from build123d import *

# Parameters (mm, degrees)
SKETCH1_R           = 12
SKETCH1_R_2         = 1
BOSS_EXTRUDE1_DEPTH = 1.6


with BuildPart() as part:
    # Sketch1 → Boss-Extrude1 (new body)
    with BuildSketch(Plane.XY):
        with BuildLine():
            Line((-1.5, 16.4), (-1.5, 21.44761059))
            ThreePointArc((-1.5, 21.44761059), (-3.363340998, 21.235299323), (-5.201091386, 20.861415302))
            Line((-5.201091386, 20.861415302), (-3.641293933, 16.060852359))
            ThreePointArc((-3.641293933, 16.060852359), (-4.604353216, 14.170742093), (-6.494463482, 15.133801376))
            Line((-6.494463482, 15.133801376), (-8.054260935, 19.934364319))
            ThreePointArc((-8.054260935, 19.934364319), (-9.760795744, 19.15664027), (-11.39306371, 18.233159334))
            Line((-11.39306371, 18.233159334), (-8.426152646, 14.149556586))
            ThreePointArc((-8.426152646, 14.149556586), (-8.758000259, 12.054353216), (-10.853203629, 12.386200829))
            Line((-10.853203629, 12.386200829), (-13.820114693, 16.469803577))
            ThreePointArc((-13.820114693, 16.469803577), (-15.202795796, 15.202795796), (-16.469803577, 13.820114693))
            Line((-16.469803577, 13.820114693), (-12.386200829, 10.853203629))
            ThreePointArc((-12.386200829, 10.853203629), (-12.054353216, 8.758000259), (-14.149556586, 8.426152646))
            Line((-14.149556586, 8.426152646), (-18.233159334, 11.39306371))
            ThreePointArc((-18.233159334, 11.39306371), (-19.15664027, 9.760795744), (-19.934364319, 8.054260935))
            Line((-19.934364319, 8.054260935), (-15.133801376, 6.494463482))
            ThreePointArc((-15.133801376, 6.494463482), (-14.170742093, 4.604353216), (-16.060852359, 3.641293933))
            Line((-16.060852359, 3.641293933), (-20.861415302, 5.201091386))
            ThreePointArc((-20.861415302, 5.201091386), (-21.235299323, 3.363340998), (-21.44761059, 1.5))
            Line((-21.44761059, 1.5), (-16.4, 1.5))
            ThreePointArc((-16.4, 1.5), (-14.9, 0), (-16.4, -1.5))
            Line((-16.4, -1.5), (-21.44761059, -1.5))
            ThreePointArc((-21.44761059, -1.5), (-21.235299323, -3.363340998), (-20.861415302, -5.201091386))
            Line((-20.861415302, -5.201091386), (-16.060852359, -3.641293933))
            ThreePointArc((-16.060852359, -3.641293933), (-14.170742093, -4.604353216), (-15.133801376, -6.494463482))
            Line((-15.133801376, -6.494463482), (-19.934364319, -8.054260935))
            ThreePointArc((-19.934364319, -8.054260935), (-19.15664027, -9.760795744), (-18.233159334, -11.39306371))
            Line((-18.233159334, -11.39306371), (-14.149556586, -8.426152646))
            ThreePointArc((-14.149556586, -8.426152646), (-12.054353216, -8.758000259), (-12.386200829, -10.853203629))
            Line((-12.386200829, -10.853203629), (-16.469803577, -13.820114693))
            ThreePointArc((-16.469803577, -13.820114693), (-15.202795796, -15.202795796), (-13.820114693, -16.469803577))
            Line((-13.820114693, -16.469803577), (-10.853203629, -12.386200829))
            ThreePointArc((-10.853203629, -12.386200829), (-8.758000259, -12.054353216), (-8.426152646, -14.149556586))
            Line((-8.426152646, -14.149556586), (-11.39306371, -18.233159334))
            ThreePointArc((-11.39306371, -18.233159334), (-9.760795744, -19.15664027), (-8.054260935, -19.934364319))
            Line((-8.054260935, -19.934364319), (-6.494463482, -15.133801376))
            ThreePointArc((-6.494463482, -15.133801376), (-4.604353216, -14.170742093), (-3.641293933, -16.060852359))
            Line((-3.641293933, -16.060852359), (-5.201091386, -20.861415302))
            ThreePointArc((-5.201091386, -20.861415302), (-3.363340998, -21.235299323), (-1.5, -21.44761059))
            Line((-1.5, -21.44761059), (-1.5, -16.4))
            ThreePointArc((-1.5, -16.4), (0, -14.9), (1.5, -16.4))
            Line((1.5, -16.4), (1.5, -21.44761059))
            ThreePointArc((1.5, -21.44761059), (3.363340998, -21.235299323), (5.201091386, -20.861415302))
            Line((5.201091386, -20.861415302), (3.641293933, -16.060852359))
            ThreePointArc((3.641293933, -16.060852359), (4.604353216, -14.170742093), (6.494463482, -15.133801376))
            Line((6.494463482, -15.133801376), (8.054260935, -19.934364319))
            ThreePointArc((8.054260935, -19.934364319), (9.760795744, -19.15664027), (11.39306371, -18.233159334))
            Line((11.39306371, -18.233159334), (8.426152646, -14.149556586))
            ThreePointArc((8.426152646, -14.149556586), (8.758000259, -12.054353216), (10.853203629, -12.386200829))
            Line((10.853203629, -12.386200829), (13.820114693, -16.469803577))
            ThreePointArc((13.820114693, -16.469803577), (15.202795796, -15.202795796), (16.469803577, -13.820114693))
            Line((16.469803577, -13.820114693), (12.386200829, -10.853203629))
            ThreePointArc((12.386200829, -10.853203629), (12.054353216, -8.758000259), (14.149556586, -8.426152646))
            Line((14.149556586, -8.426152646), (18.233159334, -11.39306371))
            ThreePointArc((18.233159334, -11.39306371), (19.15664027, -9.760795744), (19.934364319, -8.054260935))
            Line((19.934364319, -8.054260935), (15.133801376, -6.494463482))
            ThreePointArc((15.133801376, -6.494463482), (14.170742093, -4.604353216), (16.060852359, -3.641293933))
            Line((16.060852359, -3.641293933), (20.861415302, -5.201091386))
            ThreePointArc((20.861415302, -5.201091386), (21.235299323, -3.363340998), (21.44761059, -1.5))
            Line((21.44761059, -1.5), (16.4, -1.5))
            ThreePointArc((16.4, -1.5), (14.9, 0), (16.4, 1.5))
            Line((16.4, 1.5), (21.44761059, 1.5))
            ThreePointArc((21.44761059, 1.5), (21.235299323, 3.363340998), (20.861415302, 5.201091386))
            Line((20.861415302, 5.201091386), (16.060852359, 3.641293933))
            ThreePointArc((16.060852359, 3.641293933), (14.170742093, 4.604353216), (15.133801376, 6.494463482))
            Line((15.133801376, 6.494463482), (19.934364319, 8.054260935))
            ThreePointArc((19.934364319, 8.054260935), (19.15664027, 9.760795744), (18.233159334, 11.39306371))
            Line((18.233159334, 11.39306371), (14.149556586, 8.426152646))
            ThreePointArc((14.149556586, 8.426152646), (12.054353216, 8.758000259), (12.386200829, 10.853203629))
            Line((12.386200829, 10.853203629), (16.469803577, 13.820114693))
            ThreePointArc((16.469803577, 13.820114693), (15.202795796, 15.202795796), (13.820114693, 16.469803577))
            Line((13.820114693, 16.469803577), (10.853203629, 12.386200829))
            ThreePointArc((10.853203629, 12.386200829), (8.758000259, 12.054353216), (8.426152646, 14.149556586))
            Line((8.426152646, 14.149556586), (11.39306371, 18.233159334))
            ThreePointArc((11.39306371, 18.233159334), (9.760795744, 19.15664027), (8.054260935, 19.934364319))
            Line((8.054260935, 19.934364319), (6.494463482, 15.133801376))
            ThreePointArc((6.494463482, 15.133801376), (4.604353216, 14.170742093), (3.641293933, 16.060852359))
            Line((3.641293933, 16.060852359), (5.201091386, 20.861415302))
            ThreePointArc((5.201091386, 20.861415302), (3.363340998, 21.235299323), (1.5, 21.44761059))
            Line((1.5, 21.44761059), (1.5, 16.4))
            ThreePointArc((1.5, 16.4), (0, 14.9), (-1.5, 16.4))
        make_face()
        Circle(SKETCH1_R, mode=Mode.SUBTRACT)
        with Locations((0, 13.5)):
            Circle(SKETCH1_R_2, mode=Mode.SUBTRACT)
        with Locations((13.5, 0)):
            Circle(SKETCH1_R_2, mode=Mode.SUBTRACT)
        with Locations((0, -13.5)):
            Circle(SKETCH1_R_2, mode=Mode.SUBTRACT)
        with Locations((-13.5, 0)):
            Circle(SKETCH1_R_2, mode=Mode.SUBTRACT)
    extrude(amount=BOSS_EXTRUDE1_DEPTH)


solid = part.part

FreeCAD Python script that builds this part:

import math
import FreeCAD as App
import Part
import Sketcher

V = App.Vector
Q = App.Units.Quantity

doc = App.newDocument("Part")
params = doc.addObject("Spreadsheet::Sheet", "Params")
for row, (alias, value) in enumerate([
    ("sketch1_diameter", "2 mm"),
    ("sketch1_diameter2", "24 mm"),
    ("sketch1_radius", "21.5 mm"),
    ("sketch1_radius2", "1.5 mm"),
    ("pad1_length", "1.6 mm"),
], start=1):
    params.set(f"A{row}", alias)
    params.set(f"B{row}", "=" + value)
    params.setAlias(f"B{row}", alias)

body = doc.addObject("PartDesign::Body", "Body")

sketch1 = body.newObject("Sketcher::SketchObject", "Sketch")
sketch1.AttachmentSupport = (doc.getObject("XY_Plane"), [""])
sketch1.MapMode = "FlatFace"
sketch1.addGeometry([
    Part.LineSegment(V(-1.5, 16.4, 0), V(-1.5, 21.447611, 0)),
    Part.ArcOfCircle(Part.Circle(V(0, 0, 0), V(0, 0, 1), 21.5), math.radians(94.00063), math.radians(103.99937)),
    Part.LineSegment(V(-5.201091, 20.861415, 0), V(-3.641294, 16.060852, 0)),
    Part.ArcOfCircle(Part.Circle(V(-5.067879, 15.597327, 0), V(0, 0, 1), 1.5), math.radians(-162), math.radians(18)),
    Part.LineSegment(V(-6.494463, 15.133801, 0), V(-8.054261, 19.934364, 0)),
    Part.ArcOfCircle(Part.Circle(V(0, 0, 0), V(0, 0, 1), 21.5), math.radians(112.00063), math.radians(121.99937)),
    Part.LineSegment(V(-11.393064, 18.233159, 0), V(-8.426153, 14.149557, 0)),
    Part.ArcOfCircle(Part.Circle(V(-9.639678, 13.267879, 0), V(0, 0, 1), 1.5), math.radians(-144), math.radians(36)),
    Part.LineSegment(V(-10.853204, 12.386201, 0), V(-13.820115, 16.469804, 0)),
    Part.ArcOfCircle(Part.Circle(V(0, 0, 0), V(0, 0, 1), 21.5), math.radians(130.00063), math.radians(139.99937)),
    Part.LineSegment(V(-16.469804, 13.820115, 0), V(-12.386201, 10.853204, 0)),
    Part.ArcOfCircle(Part.Circle(V(-13.267879, 9.639678, 0), V(0, 0, 1), 1.5), math.radians(-126), math.radians(54)),
    Part.LineSegment(V(-14.149557, 8.426153, 0), V(-18.233159, 11.393064, 0)),
    Part.ArcOfCircle(Part.Circle(V(0, 0, 0), V(0, 0, 1), 21.5), math.radians(148.00063), math.radians(157.99937)),
    Part.LineSegment(V(-19.934364, 8.054261, 0), V(-15.133801, 6.494463, 0)),
    Part.ArcOfCircle(Part.Circle(V(-15.597327, 5.067879, 0), V(0, 0, 1), 1.5), math.radians(-108), math.radians(72)),
    Part.LineSegment(V(-16.060852, 3.641294, 0), V(-20.861415, 5.201091, 0)),
    Part.ArcOfCircle(Part.Circle(V(0, 0, 0), V(0, 0, 1), 21.5), math.radians(166.00063), math.radians(175.99937)),
    Part.LineSegment(V(-21.447611, 1.5, 0), V(-16.4, 1.5, 0)),
    Part.ArcOfCircle(Part.Circle(V(-16.4, 0, 0), V(0, 0, 1), 1.5), math.radians(-90), math.radians(90)),
    Part.LineSegment(V(-16.4, -1.5, 0), V(-21.447611, -1.5, 0)),
    Part.ArcOfCircle(Part.Circle(V(0, 0, 0), V(0, 0, 1), 21.5), math.radians(-175.99937), math.radians(-166.00063)),
    Part.LineSegment(V(-20.861415, -5.201091, 0), V(-16.060852, -3.641294, 0)),
    Part.ArcOfCircle(Part.Circle(V(-15.597327, -5.067879, 0), V(0, 0, 1), 1.5), math.radians(-72), math.radians(108)),
    Part.LineSegment(V(-15.133801, -6.494463, 0), V(-19.934364, -8.054261, 0)),
    Part.ArcOfCircle(Part.Circle(V(0, 0, 0), V(0, 0, 1), 21.5), math.radians(-157.99937), math.radians(-148.00063)),
    Part.LineSegment(V(-18.233159, -11.393064, 0), V(-14.149557, -8.426153, 0)),
    Part.ArcOfCircle(Part.Circle(V(-13.267879, -9.639678, 0), V(0, 0, 1), 1.5), math.radians(-54), math.radians(126)),
    Part.LineSegment(V(-12.386201, -10.853204, 0), V(-16.469804, -13.820115, 0)),
    Part.ArcOfCircle(Part.Circle(V(0, 0, 0), V(0, 0, 1), 21.5), math.radians(-139.99937), math.radians(-130.00063)),
    Part.LineSegment(V(-13.820115, -16.469804, 0), V(-10.853204, -12.386201, 0)),
    Part.ArcOfCircle(Part.Circle(V(-9.639678, -13.267879, 0), V(0, 0, 1), 1.5), math.radians(-36), math.radians(144)),
    Part.LineSegment(V(-8.426153, -14.149557, 0), V(-11.393064, -18.233159, 0)),
    Part.ArcOfCircle(Part.Circle(V(0, 0, 0), V(0, 0, 1), 21.5), math.radians(-121.99937), math.radians(-112.00063)),
    Part.LineSegment(V(-8.054261, -19.934364, 0), V(-6.494463, -15.133801, 0)),
    Part.ArcOfCircle(Part.Circle(V(-5.067879, -15.597327, 0), V(0, 0, 1), 1.5), math.radians(-18), math.radians(162)),
    Part.LineSegment(V(-3.641294, -16.060852, 0), V(-5.201091, -20.861415, 0)),
    Part.ArcOfCircle(Part.Circle(V(0, 0, 0), V(0, 0, 1), 21.5), math.radians(-103.99937), math.radians(-94.00063)),
    Part.LineSegment(V(-1.5, -21.447611, 0), V(-1.5, -16.4, 0)),
    Part.ArcOfCircle(Part.Circle(V(0, -16.4, 0), V(0, 0, 1), 1.5), math.radians(0), math.radians(180)),
    Part.LineSegment(V(1.5, -16.4, 0), V(1.5, -21.447611, 0)),
    Part.ArcOfCircle(Part.Circle(V(0, 0, 0), V(0, 0, 1), 21.5), math.radians(-85.99937), math.radians(-76.00063)),
    Part.LineSegment(V(5.201091, -20.861415, 0), V(3.641294, -16.060852, 0)),
    Part.ArcOfCircle(Part.Circle(V(5.067879, -15.597327, 0), V(0, 0, 1), 1.5), math.radians(18), math.radians(198)),
    Part.LineSegment(V(6.494463, -15.133801, 0), V(8.054261, -19.934364, 0)),
    Part.ArcOfCircle(Part.Circle(V(0, 0, 0), V(0, 0, 1), 21.5), math.radians(-67.99937), math.radians(-58.00063)),
    Part.LineSegment(V(11.393064, -18.233159, 0), V(8.426153, -14.149557, 0)),
    Part.ArcOfCircle(Part.Circle(V(9.639678, -13.267879, 0), V(0, 0, 1), 1.5), math.radians(36), math.radians(216)),
    Part.LineSegment(V(10.853204, -12.386201, 0), V(13.820115, -16.469804, 0)),
    Part.ArcOfCircle(Part.Circle(V(0, 0, 0), V(0, 0, 1), 21.5), math.radians(-49.99937), math.radians(-40.00063)),
    Part.LineSegment(V(16.469804, -13.820115, 0), V(12.386201, -10.853204, 0)),
    Part.ArcOfCircle(Part.Circle(V(13.267879, -9.639678, 0), V(0, 0, 1), 1.5), math.radians(54), math.radians(234)),
    Part.LineSegment(V(14.149557, -8.426153, 0), V(18.233159, -11.393064, 0)),
    Part.ArcOfCircle(Part.Circle(V(0, 0, 0), V(0, 0, 1), 21.5), math.radians(-31.99937), math.radians(-22.00063)),
    Part.LineSegment(V(19.934364, -8.054261, 0), V(15.133801, -6.494463, 0)),
    Part.ArcOfCircle(Part.Circle(V(15.597327, -5.067879, 0), V(0, 0, 1), 1.5), math.radians(72), math.radians(252)),
    Part.LineSegment(V(16.060852, -3.641294, 0), V(20.861415, -5.201091, 0)),
    Part.ArcOfCircle(Part.Circle(V(0, 0, 0), V(0, 0, 1), 21.5), math.radians(-13.99937), math.radians(-4.00063)),
    Part.LineSegment(V(21.447611, -1.5, 0), V(16.4, -1.5, 0)),
    Part.ArcOfCircle(Part.Circle(V(16.4, 0, 0), V(0, 0, 1), 1.5), math.radians(90), math.radians(270)),
    Part.LineSegment(V(16.4, 1.5, 0), V(21.447611, 1.5, 0)),
    Part.ArcOfCircle(Part.Circle(V(0, 0, 0), V(0, 0, 1), 21.5), math.radians(4.00063), math.radians(13.99937)),
    Part.LineSegment(V(20.861415, 5.201091, 0), V(16.060852, 3.641294, 0)),
    Part.ArcOfCircle(Part.Circle(V(15.597327, 5.067879, 0), V(0, 0, 1), 1.5), math.radians(108), math.radians(288)),
    Part.LineSegment(V(15.133801, 6.494463, 0), V(19.934364, 8.054261, 0)),
    Part.ArcOfCircle(Part.Circle(V(0, 0, 0), V(0, 0, 1), 21.5), math.radians(22.00063), math.radians(31.99937)),
    Part.LineSegment(V(18.233159, 11.393064, 0), V(14.149557, 8.426153, 0)),
    Part.ArcOfCircle(Part.Circle(V(13.267879, 9.639678, 0), V(0, 0, 1), 1.5), math.radians(126), math.radians(306)),
    Part.LineSegment(V(12.386201, 10.853204, 0), V(16.469804, 13.820115, 0)),
    Part.ArcOfCircle(Part.Circle(V(0, 0, 0), V(0, 0, 1), 21.5), math.radians(40.00063), math.radians(49.99937)),
    Part.LineSegment(V(13.820115, 16.469804, 0), V(10.853204, 12.386201, 0)),
    Part.ArcOfCircle(Part.Circle(V(9.639678, 13.267879, 0), V(0, 0, 1), 1.5), math.radians(144), math.radians(324)),
    Part.LineSegment(V(8.426153, 14.149557, 0), V(11.393064, 18.233159, 0)),
    Part.ArcOfCircle(Part.Circle(V(0, 0, 0), V(0, 0, 1), 21.5), math.radians(58.00063), math.radians(67.99937)),
    Part.LineSegment(V(8.054261, 19.934364, 0), V(6.494463, 15.133801, 0)),
    Part.ArcOfCircle(Part.Circle(V(5.067879, 15.597327, 0), V(0, 0, 1), 1.5), math.radians(162), math.radians(342)),
    Part.LineSegment(V(3.641294, 16.060852, 0), V(5.201091, 20.861415, 0)),
    Part.ArcOfCircle(Part.Circle(V(0, 0, 0), V(0, 0, 1), 21.5), math.radians(76.00063), math.radians(85.99937)),
    Part.LineSegment(V(1.5, 21.447611, 0), V(1.5, 16.4, 0)),
    Part.ArcOfCircle(Part.Circle(V(0, 16.4, 0), V(0, 0, 1), 1.5), math.radians(180), math.radians(360)),
    Part.Circle(V(0, -13.5, 0), V(0, 0, 1), 1),
    Part.Circle(V(-13.5, 0, 0), V(0, 0, 1), 1),
    Part.Circle(V(0, 0, 0), V(0, 0, 1), 12),
    Part.Circle(V(13.5, 0, 0), V(0, 0, 1), 1),
    Part.Circle(V(0, 13.5, 0), V(0, 0, 1), 1),
], False)
sketch1.addConstraint([
    Sketcher.Constraint("Coincident", 0, 2, 1, 1),
    Sketcher.Constraint("Coincident", 1, 2, 2, 1),
    Sketcher.Constraint("Tangent", 2, 2, 3, 2),
    Sketcher.Constraint("Tangent", 3, 1, 4, 1),
    Sketcher.Constraint("Coincident", 4, 2, 5, 1),
    Sketcher.Constraint("Coincident", 5, 2, 6, 1),
    Sketcher.Constraint("Tangent", 6, 2, 7, 2),
    Sketcher.Constraint("Tangent", 7, 1, 8, 1),
    Sketcher.Constraint("Coincident", 8, 2, 9, 1),
    Sketcher.Constraint("Coincident", 9, 2, 10, 1),
    Sketcher.Constraint("Tangent", 10, 2, 11, 2),
    Sketcher.Constraint("Tangent", 11, 1, 12, 1),
    Sketcher.Constraint("Coincident", 12, 2, 13, 1),
    Sketcher.Constraint("Coincident", 13, 2, 14, 1),
    Sketcher.Constraint("Tangent", 14, 2, 15, 2),
    Sketcher.Constraint("Tangent", 15, 1, 16, 1),
    Sketcher.Constraint("Coincident", 16, 2, 17, 1),
    Sketcher.Constraint("Coincident", 17, 2, 18, 1),
    Sketcher.Constraint("Tangent", 18, 2, 19, 2),
    Sketcher.Constraint("Tangent", 19, 1, 20, 1),
    Sketcher.Constraint("Coincident", 20, 2, 21, 1),
    Sketcher.Constraint("Coincident", 21, 2, 22, 1),
    Sketcher.Constraint("Tangent", 22, 2, 23, 2),
    Sketcher.Constraint("Tangent", 23, 1, 24, 1),
    Sketcher.Constraint("Coincident", 24, 2, 25, 1),
    Sketcher.Constraint("Coincident", 25, 2, 26, 1),
    Sketcher.Constraint("Tangent", 26, 2, 27, 2),
    Sketcher.Constraint("Tangent", 27, 1, 28, 1),
    Sketcher.Constraint("Coincident", 28, 2, 29, 1),
    Sketcher.Constraint("Coincident", 29, 2, 30, 1),
    Sketcher.Constraint("Tangent", 30, 2, 31, 2),
    Sketcher.Constraint("Tangent", 31, 1, 32, 1),
    Sketcher.Constraint("Coincident", 32, 2, 33, 1),
    Sketcher.Constraint("Coincident", 33, 2, 34, 1),
    Sketcher.Constraint("Tangent", 34, 2, 35, 2),
    Sketcher.Constraint("Tangent", 35, 1, 36, 1),
    Sketcher.Constraint("Coincident", 36, 2, 37, 1),
    Sketcher.Constraint("Coincident", 37, 2, 38, 1),
    Sketcher.Constraint("Tangent", 38, 2, 39, 2),
    Sketcher.Constraint("Tangent", 39, 1, 40, 1),
    Sketcher.Constraint("Coincident", 40, 2, 41, 1),
    Sketcher.Constraint("Coincident", 41, 2, 42, 1),
    Sketcher.Constraint("Tangent", 42, 2, 43, 2),
    Sketcher.Constraint("Tangent", 43, 1, 44, 1),
    Sketcher.Constraint("Coincident", 44, 2, 45, 1),
    Sketcher.Constraint("Coincident", 45, 2, 46, 1),
    Sketcher.Constraint("Tangent", 46, 2, 47, 2),
    Sketcher.Constraint("Tangent", 47, 1, 48, 1),
    Sketcher.Constraint("Coincident", 48, 2, 49, 1),
    Sketcher.Constraint("Coincident", 49, 2, 50, 1),
    Sketcher.Constraint("Tangent", 50, 2, 51, 2),
    Sketcher.Constraint("Tangent", 51, 1, 52, 1),
    Sketcher.Constraint("Coincident", 52, 2, 53, 1),
    Sketcher.Constraint("Coincident", 53, 2, 54, 1),
    Sketcher.Constraint("Tangent", 54, 2, 55, 2),
    Sketcher.Constraint("Tangent", 55, 1, 56, 1),
    Sketcher.Constraint("Coincident", 56, 2, 57, 1),
    Sketcher.Constraint("Coincident", 57, 2, 58, 1),
    Sketcher.Constraint("Tangent", 58, 2, 59, 2),
    Sketcher.Constraint("Tangent", 59, 1, 60, 1),
    Sketcher.Constraint("Coincident", 60, 2, 61, 1),
    Sketcher.Constraint("Coincident", 61, 2, 62, 1),
    Sketcher.Constraint("Tangent", 62, 2, 63, 2),
    Sketcher.Constraint("Tangent", 63, 1, 64, 1),
    Sketcher.Constraint("Coincident", 64, 2, 65, 1),
    Sketcher.Constraint("Coincident", 65, 2, 66, 1),
    Sketcher.Constraint("Tangent", 66, 2, 67, 2),
    Sketcher.Constraint("Tangent", 67, 1, 68, 1),
    Sketcher.Constraint("Coincident", 68, 2, 69, 1),
    Sketcher.Constraint("Coincident", 69, 2, 70, 1),
    Sketcher.Constraint("Tangent", 70, 2, 71, 2),
    Sketcher.Constraint("Tangent", 71, 1, 72, 1),
    Sketcher.Constraint("Coincident", 72, 2, 73, 1),
    Sketcher.Constraint("Coincident", 73, 2, 74, 1),
    Sketcher.Constraint("Tangent", 74, 2, 75, 2),
    Sketcher.Constraint("Tangent", 75, 1, 76, 1),
    Sketcher.Constraint("Coincident", 76, 2, 77, 1),
    Sketcher.Constraint("Coincident", 77, 2, 78, 1),
    Sketcher.Constraint("Tangent", 78, 2, 79, 2),
    Sketcher.Constraint("Tangent", 79, 1, 0, 1),
    Sketcher.Constraint("Vertical", 0),
    Sketcher.Constraint("Horizontal", 18),
    Sketcher.Constraint("Horizontal", 20),
    Sketcher.Constraint("Vertical", 38),
    Sketcher.Constraint("Vertical", 40),
    Sketcher.Constraint("Horizontal", 58),
    Sketcher.Constraint("Horizontal", 60),
    Sketcher.Constraint("Vertical", 78),
    Sketcher.Constraint("Coincident", 1, 3, -1, 1),
    Sketcher.Constraint("Coincident", 5, 3, -1, 1),
    Sketcher.Constraint("Coincident", 9, 3, -1, 1),
    Sketcher.Constraint("Coincident", 13, 3, -1, 1),
    Sketcher.Constraint("Coincident", 17, 3, -1, 1),
    Sketcher.Constraint("Coincident", 21, 3, -1, 1),
    Sketcher.Constraint("Coincident", 25, 3, -1, 1),
    Sketcher.Constraint("Coincident", 29, 3, -1, 1),
    Sketcher.Constraint("Coincident", 33, 3, -1, 1),
    Sketcher.Constraint("Coincident", 37, 3, -1, 1),
    Sketcher.Constraint("Coincident", 41, 3, -1, 1),
    Sketcher.Constraint("Coincident", 45, 3, -1, 1),
    Sketcher.Constraint("Coincident", 49, 3, -1, 1),
    Sketcher.Constraint("Coincident", 53, 3, -1, 1),
    Sketcher.Constraint("Coincident", 57, 3, -1, 1),
    Sketcher.Constraint("Coincident", 61, 3, -1, 1),
    Sketcher.Constraint("Coincident", 65, 3, -1, 1),
    Sketcher.Constraint("Coincident", 69, 3, -1, 1),
    Sketcher.Constraint("Coincident", 73, 3, -1, 1),
    Sketcher.Constraint("Coincident", 77, 3, -1, 1),
    Sketcher.Constraint("Coincident", 82, 3, -1, 1),
    Sketcher.Constraint("Equal", 1, 5),
    Sketcher.Constraint("Equal", 3, 7),
    Sketcher.Constraint("Equal", 5, 9),
    Sketcher.Constraint("Equal", 7, 11),
    Sketcher.Constraint("Equal", 9, 13),
    Sketcher.Constraint("Equal", 11, 15),
    Sketcher.Constraint("Equal", 13, 17),
    Sketcher.Constraint("Equal", 15, 19),
    Sketcher.Constraint("Equal", 17, 21),
    Sketcher.Constraint("Equal", 19, 23),
    Sketcher.Constraint("Equal", 21, 25),
    Sketcher.Constraint("Equal", 23, 27),
    Sketcher.Constraint("Equal", 25, 29),
    Sketcher.Constraint("Equal", 27, 31),
    Sketcher.Constraint("Equal", 29, 33),
    Sketcher.Constraint("Equal", 31, 35),
    Sketcher.Constraint("Equal", 33, 37),
    Sketcher.Constraint("Equal", 35, 39),
    Sketcher.Constraint("Equal", 37, 41),
    Sketcher.Constraint("Equal", 39, 43),
    Sketcher.Constraint("Equal", 41, 45),
    Sketcher.Constraint("Equal", 43, 47),
    Sketcher.Constraint("Equal", 45, 49),
    Sketcher.Constraint("Equal", 47, 51),
    Sketcher.Constraint("Equal", 49, 53),
    Sketcher.Constraint("Equal", 51, 55),
    Sketcher.Constraint("Equal", 53, 57),
    Sketcher.Constraint("Equal", 55, 59),
    Sketcher.Constraint("Equal", 57, 61),
    Sketcher.Constraint("Equal", 59, 63),
    Sketcher.Constraint("Equal", 61, 65),
    Sketcher.Constraint("Equal", 63, 67),
    Sketcher.Constraint("Equal", 65, 69),
    Sketcher.Constraint("Equal", 67, 71),
    Sketcher.Constraint("Equal", 69, 73),
    Sketcher.Constraint("Equal", 71, 75),
    Sketcher.Constraint("Equal", 73, 77),
    Sketcher.Constraint("Equal", 75, 79),
    Sketcher.Constraint("Equal", 80, 81),
    Sketcher.Constraint("Equal", 81, 83),
    Sketcher.Constraint("Equal", 83, 84),
    Sketcher.Constraint("Symmetric", 3, 3, 43, 3, -1, 1),
    Sketcher.Constraint("Symmetric", 7, 3, 47, 3, -1, 1),
    Sketcher.Constraint("Symmetric", 11, 3, 51, 3, -1, 1),
    Sketcher.Constraint("Symmetric", 15, 3, 55, 3, -1, 1),
    Sketcher.Constraint("Symmetric", 19, 3, 59, 3, -1, 1),
    Sketcher.Constraint("Symmetric", 23, 3, 63, 3, -1, 1),
    Sketcher.Constraint("Symmetric", 27, 3, 67, 3, -1, 1),
    Sketcher.Constraint("Symmetric", 31, 3, 71, 3, -1, 1),
    Sketcher.Constraint("Symmetric", 35, 3, 75, 3, -1, 1),
    Sketcher.Constraint("Symmetric", 39, 3, 79, 3, -1, 1),
    Sketcher.Constraint("Symmetric", 81, 3, 83, 3, -1, 1),
    Sketcher.Constraint("Symmetric", 80, 3, 84, 3, -1, 1),
    Sketcher.Constraint("Symmetric", 35, 3, 43, 3, -2),
    Sketcher.Constraint("Symmetric", 31, 3, 47, 3, -2),
    Sketcher.Constraint("Symmetric", 27, 3, 51, 3, -2),
    Sketcher.Constraint("Symmetric", 23, 3, 55, 3, -2),
    Sketcher.Constraint("PointOnObject", 19, 3, -1),
    Sketcher.Constraint("PointOnObject", 39, 3, -2),
    Sketcher.Constraint("PointOnObject", 80, 3, -2),
    Sketcher.Constraint("PointOnObject", 81, 3, -1),
    Sketcher.Constraint("Parallel", 2, 4),
    Sketcher.Constraint("Parallel", 6, 8),
    Sketcher.Constraint("Parallel", 10, 12),
    Sketcher.Constraint("Parallel", 14, 16),
    Sketcher.Constraint("Perpendicular", 4, 22),
    Sketcher.Constraint("Parallel", 22, 24),
    Sketcher.Constraint("Perpendicular", 8, 26),
    Sketcher.Constraint("Parallel", 26, 28),
    Sketcher.Constraint("Perpendicular", 12, 30),
    Sketcher.Constraint("Parallel", 30, 32),
    Sketcher.Constraint("Perpendicular", 16, 34),
    Sketcher.Constraint("Parallel", 34, 36),
    Sketcher.Constraint("Perpendicular", 24, 42),
    Sketcher.Constraint("Parallel", 42, 44),
    Sketcher.Constraint("Perpendicular", 28, 46),
    Sketcher.Constraint("Parallel", 46, 48),
    Sketcher.Constraint("Perpendicular", 32, 50),
    Sketcher.Constraint("Parallel", 50, 52),
    Sketcher.Constraint("Perpendicular", 36, 54),
    Sketcher.Constraint("Parallel", 54, 56),
    Sketcher.Constraint("Perpendicular", 44, 62),
    Sketcher.Constraint("Parallel", 62, 64),
    Sketcher.Constraint("Perpendicular", 48, 66),
    Sketcher.Constraint("Parallel", 66, 68),
    Sketcher.Constraint("Perpendicular", 52, 70),
    Sketcher.Constraint("Parallel", 70, 72),
    Sketcher.Constraint("Perpendicular", 56, 74),
    Sketcher.Constraint("Parallel", 74, 76),
    Sketcher.Constraint("Horizontal", 36, 2, 41, 2),
    Sketcher.Constraint("Horizontal", 32, 2, 45, 2),
    Sketcher.Constraint("Equal", 60, 0),
    Sketcher.Constraint("Equal", 2, 4),
    Sketcher.Constraint("Equal", 4, 6),
    Sketcher.Constraint("Equal", 6, 8),
    Sketcher.Constraint("Equal", 8, 10),
    Sketcher.Constraint("Equal", 10, 12),
    Sketcher.Constraint("Equal", 12, 14),
    Sketcher.Constraint("Equal", 14, 16),
    Sketcher.Constraint("Diameter", 80, 2.0),
    Sketcher.Constraint("Diameter", 82, 24.0),
    Sketcher.Constraint("Radius", 1, 21.5),
    Sketcher.Constraint("Radius", 3, 1.5),
    Sketcher.Constraint("Angle", 2, Q("-72 deg")),
    Sketcher.Constraint("Angle", 6, Q("-54 deg")),
    Sketcher.Constraint("DistanceX", 19, 3, -1, 1, 16.4),
    Sketcher.Constraint("DistanceY", 80, 3, -1, 1, 13.5),
    Sketcher.Constraint("DistanceX", 81, 3, -1, 1, 13.5),
    Sketcher.Constraint("DistanceY", -1, 1, 3, 1, 15.133801),
])
sketch1.setExpression("Constraints[208]", "Params.sketch1_diameter")
sketch1.setExpression("Constraints[209]", "Params.sketch1_diameter2")
sketch1.setExpression("Constraints[210]", "Params.sketch1_radius")
sketch1.setExpression("Constraints[211]", "Params.sketch1_radius2")
pad1 = body.newObject("PartDesign::Pad", "Pad")
pad1.Profile = sketch1
pad1.setExpression("Length", "Params.pad1_length")

doc.recompute()
